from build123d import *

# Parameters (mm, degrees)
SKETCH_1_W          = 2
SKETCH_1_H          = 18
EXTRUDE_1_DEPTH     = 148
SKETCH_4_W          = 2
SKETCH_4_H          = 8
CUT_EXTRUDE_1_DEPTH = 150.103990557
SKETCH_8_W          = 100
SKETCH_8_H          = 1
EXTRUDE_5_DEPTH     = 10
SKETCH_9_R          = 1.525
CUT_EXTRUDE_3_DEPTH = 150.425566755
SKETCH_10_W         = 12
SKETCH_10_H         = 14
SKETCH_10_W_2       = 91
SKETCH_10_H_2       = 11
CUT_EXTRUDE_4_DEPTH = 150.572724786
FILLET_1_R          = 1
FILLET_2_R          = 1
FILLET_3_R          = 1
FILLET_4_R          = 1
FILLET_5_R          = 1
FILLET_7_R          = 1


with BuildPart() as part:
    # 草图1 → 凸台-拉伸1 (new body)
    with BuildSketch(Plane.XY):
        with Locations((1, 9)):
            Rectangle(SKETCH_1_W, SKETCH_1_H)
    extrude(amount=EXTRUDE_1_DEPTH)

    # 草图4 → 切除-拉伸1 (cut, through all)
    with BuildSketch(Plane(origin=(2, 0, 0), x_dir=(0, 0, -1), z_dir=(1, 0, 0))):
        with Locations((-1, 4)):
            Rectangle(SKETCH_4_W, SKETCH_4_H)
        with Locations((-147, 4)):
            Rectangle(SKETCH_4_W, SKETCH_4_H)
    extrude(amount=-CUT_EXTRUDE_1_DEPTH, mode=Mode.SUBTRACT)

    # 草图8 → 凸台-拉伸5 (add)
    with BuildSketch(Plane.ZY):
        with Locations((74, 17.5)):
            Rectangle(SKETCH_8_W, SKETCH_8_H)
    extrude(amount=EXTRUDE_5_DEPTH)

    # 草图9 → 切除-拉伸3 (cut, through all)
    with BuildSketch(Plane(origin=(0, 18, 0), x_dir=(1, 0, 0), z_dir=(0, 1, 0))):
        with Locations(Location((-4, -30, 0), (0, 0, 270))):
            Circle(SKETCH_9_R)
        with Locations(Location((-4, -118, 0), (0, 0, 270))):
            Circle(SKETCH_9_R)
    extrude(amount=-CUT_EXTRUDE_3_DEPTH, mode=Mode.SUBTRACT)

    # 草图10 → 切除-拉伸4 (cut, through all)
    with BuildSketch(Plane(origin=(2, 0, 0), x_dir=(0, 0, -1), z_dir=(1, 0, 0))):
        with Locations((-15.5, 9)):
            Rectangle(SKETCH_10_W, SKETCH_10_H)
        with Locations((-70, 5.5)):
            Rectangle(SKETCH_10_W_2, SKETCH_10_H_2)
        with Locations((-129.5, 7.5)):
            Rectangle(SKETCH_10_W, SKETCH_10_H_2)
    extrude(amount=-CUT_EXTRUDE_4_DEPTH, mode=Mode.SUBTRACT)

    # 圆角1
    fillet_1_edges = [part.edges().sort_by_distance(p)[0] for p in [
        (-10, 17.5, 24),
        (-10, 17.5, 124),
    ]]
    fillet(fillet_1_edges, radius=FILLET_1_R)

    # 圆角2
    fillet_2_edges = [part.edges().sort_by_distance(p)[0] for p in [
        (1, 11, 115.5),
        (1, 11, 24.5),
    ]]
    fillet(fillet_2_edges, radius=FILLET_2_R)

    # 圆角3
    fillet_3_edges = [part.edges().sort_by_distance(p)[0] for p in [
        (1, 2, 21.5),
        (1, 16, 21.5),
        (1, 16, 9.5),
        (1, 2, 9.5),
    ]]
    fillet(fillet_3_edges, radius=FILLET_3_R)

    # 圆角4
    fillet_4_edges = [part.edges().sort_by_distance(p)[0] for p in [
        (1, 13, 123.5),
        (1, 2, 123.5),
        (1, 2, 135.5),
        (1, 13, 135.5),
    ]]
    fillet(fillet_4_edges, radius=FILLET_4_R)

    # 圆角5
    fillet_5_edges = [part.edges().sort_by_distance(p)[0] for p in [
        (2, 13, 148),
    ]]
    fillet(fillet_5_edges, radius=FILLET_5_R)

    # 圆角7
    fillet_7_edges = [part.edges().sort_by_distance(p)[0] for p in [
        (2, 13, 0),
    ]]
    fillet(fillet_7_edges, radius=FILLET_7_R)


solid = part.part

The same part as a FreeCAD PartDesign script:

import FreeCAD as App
import Part
import Sketcher
from FreeCAD import Vector


def edges_at(feature, points):
    """Names of the edges that pass closest to the given points."""
    edges = feature.Shape.Edges
    near = lambda p: min(range(len(edges)), key=lambda i: edges[i].distToShape(Part.Vertex(*p))[0])
    return sorted({f"Edge{near(p) + 1}" for p in points})

doc = App.newDocument("Part")
params = doc.addObject("Spreadsheet::Sheet", "Params")
for row, (alias, value) in enumerate([
    ("sketch1_width", "2 mm"),
    ("sketch1_height", "18 mm"),
    ("pad1_length", "148 mm"),
    ("sketch2_width", "8 mm"),
    ("sketch2_height", "2 mm"),
    ("sketch3_width", "1 mm"),
    ("sketch3_height", "100 mm"),
    ("pad2_length", "10 mm"),
    ("sketch4_diameter", "3.05 mm"),
    ("sketch5_width", "14 mm"),
    ("sketch5_width2", "11 mm"),
    ("sketch5_height", "12 mm"),
    ("sketch5_height2", "91 mm"),
    ("fillet_radius", "1 mm"),
    ("fillet2_radius", "1 mm"),
    ("fillet3_radius", "1 mm"),
    ("fillet4_radius", "1 mm"),
    ("fillet5_radius", "1 mm"),
    ("fillet6_radius", "1 mm"),
], start=1):
    params.set(f"A{row}", alias)
    params.set(f"B{row}", "=" + value)
    params.setAlias(f"B{row}", alias)

body = doc.addObject("PartDesign::Body", "Body")

sketch1 = body.newObject("Sketcher::SketchObject", "Sketch")
sketch1.AttachmentSupport = (doc.getObject("XY_Plane"), [""])
sketch1.MapMode = "FlatFace"
sketch1.addGeometry([
    Part.LineSegment(Vector(0, 18, 0), Vector(0, 0, 0)),
    Part.LineSegment(Vector(0, 0, 0), Vector(2, 0, 0)),
    Part.LineSegment(Vector(2, 0, 0), Vector(2, 18, 0)),
    Part.LineSegment(Vector(2, 18, 0), Vector(0, 18, 0)),
], False)
sketch1.addConstraint([
    Sketcher.Constraint("Coincident", 0, 2, 1, 1),
    Sketcher.Constraint("Coincident", 1, 2, 2, 1),
    Sketcher.Constraint("Coincident", 2, 2, 3, 1),
    Sketcher.Constraint("Coincident", 3, 2, 0, 1),
    Sketcher.Constraint("Vertical", 0),
    Sketcher.Constraint("Horizontal", 1),
    Sketcher.Constraint("Vertical", 2),
    Sketcher.Constraint("Horizontal", 3),
    Sketcher.Constraint("Coincident", 0, 2, -1, 1),
    Sketcher.Constraint("DistanceX", 1, 1, 1, 2, 2.0),
    Sketcher.Constraint("DistanceY", 0, 2, 0, 1, 18.0),
])
sketch1.setExpression("Constraints[9]", "Params.sketch1_width")
sketch1.setExpression("Constraints[10]", "Params.sketch1_height")
pad1 = body.newObject("PartDesign::Pad", "Pad")
pad1.Profile = sketch1
pad1.setExpression("Length", "Params.pad1_length")

sketch2 = body.newObject("Sketcher::SketchObject", "Sketch001")
sketch2.AttachmentSupport = (doc.getObject("YZ_Plane"), [""])
sketch2.MapMode = "FlatFace"
sketch2.AttachmentOffset = App.Placement(Vector(0, 0, 2), App.Rotation())
sketch2.addGeometry([
    Part.LineSegment(Vector(8, 2, 0), Vector(0, 2, 0)),
    Part.LineSegment(Vector(0, 2, 0), Vector(0, 0, 0)),
    Part.LineSegment(Vector(0, 0, 0), Vector(8, 0, 0)),
    Part.LineSegment(Vector(8, 0, 0), Vector(8, 2, 0)),
    Part.LineSegment(Vector(8, 148, 0), Vector(0, 148, 0)),
    Part.LineSegment(Vector(0, 148, 0), Vector(0, 146, 0)),
    Part.LineSegment(Vector(0, 146, 0), Vector(8, 146, 0)),
    Part.LineSegment(Vector(8, 146, 0), Vector(8, 148, 0)),
], False)
sketch2.addConstraint([
    Sketcher.Constraint("Coincident", 0, 2, 1, 1),
    Sketcher.Constraint("Coincident", 1, 2, 2, 1),
    Sketcher.Constraint("Coincident", 2, 2, 3, 1),
    Sketcher.Constraint("Coincident", 3, 2, 0, 1),
    Sketcher.Constraint("Coincident", 4, 2, 5, 1),
    Sketcher.Constraint("Coincident", 5, 2, 6, 1),
    Sketcher.Constraint("Coincident", 6, 2, 7, 1),
    Sketcher.Constraint("Coincident", 7, 2, 4, 1),
    Sketcher.Constraint("Horizontal", 0),
    Sketcher.Constraint("Vertical", 1),
    Sketcher.Constraint("Horizontal", 2),
    Sketcher.Constraint("Vertical", 3),
    Sketcher.Constraint("Horizontal", 4),
    Sketcher.Constraint("Vertical", 5),
    Sketcher.Constraint("Horizontal", 6),
    Sketcher.Constraint("Vertical", 7),
    Sketcher.Constraint("Coincident", 1, 2, -1, 1),
    Sketcher.Constraint("PointOnObject", 4, 2, -2),
    Sketcher.Constraint("Vertical", 3, 2, 6, 2),
    Sketcher.Constraint("Equal", 3, 5),
    Sketcher.Constraint("DistanceX", 0, 2, 0, 1, 8.0),
    Sketcher.Constraint("DistanceY", 1, 2, 1, 1, 2.0),
    Sketcher.Constraint("DistanceY", -1, 1, 4, 2, 148.0),
])
sketch2.setExpression("Constraints[20]", "Params.sketch2_width")
sketch2.setExpression("Constraints[21]", "Params.sketch2_height")
pocket1 = body.newObject("PartDesign::Pocket", "Pocket")
pocket1.Profile = sketch2
pocket1.Type = "ThroughAll"

sketch3 = body.newObject("Sketcher::SketchObject", "Sketch002")
sketch3.AttachmentSupport = (doc.getObject("YZ_Plane"), [""])
sketch3.MapMode = "FlatFace"
sketch3.addGeometry([
    Part.LineSegment(Vector(18, 24, 0), Vector(17, 24, 0)),
    Part.LineSegment(Vector(17, 24, 0), Vector(17, 124, 0)),
    Part.LineSegment(Vector(17, 124, 0), Vector(18, 124, 0)),
    Part.LineSegment(Vector(18, 124, 0), Vector(18, 24, 0)),
], False)
sketch3.addConstraint([
    Sketcher.Constraint("Coincident", 0, 2, 1, 1),
    Sketcher.Constraint("Coincident", 1, 2, 2, 1),
    Sketcher.Constraint("Coincident", 2, 2, 3, 1),
    Sketcher.Constraint("Coincident", 3, 2, 0, 1),
    Sketcher.Constraint("Horizontal", 0),
    Sketcher.Constraint("Vertical", 1),
    Sketcher.Constraint("Horizontal", 2),
    Sketcher.Constraint("Vertical", 3),
    Sketcher.Constraint("DistanceX", 0, 2, 0, 1, 1.0),
    Sketcher.Constraint("DistanceY", 1, 1, 1, 2, 100.0),
    Sketcher.Constraint("DistanceX", -1, 1, 0, 2, 17.0),
    Sketcher.Constraint("DistanceY", -1, 1, 0, 2, 24.0),
])
sketch3.setExpression("Constraints[8]", "Params.sketch3_width")
sketch3.setExpression("Constraints[9]", "Params.sketch3_height")
pad2 = body.newObject("PartDesign::Pad", "Pad001")
pad2.Profile = sketch3
pad2.setExpression("Length", "Params.pad2_length")
pad2.Reversed = True

sketch4 = body.newObject("Sketcher::SketchObject", "Sketch003")
sketch4.AttachmentSupport = (doc.getObject("XZ_Plane"), [""])
sketch4.MapMode = "FlatFace"
sketch4.AttachmentOffset = App.Placement(Vector(0, 0, -18), App.Rotation())
sketch4.addGeometry([
    Part.Circle(Vector(-4, 30, 0), Vector(0, 0, 1), 1.5),
    Part.Circle(Vector(-4, 118, 0), Vector(0, 0, 1), 1.5),
], False)
sketch4.addConstraint([
    Sketcher.Constraint("Equal", 0, 1),
    Sketcher.Constraint("Vertical", 0, 3, 1, 3),
    Sketcher.Constraint("Diameter", 0, 3.05),
    Sketcher.Constraint("DistanceX", 0, 3, -1, 1, 4.0),
    Sketcher.Constraint("DistanceY", -1, 1, 0, 3, 30.0),
    Sketcher.Constraint("DistanceY", -1, 1, 1, 3, 118.0),
])
sketch4.setExpression("Constraints[2]", "Params.sketch4_diameter")
pocket2 = body.newObject("PartDesign::Pocket", "Pocket001")
pocket2.Profile = sketch4
pocket2.Type = "ThroughAll"
pocket2.Reversed = True

sketch5 = body.newObject("Sketcher::SketchObject", "Sketch004")
sketch5.AttachmentSupport = (doc.getObject("YZ_Plane"), [""])
sketch5.MapMode = "FlatFace"
sketch5.AttachmentOffset = App.Placement(Vector(0, 0, 2), App.Rotation())
sketch5.addGeometry([
    Part.LineSegment(Vector(16, 22, 0), Vector(2, 22, 0)),
    Part.LineSegment(Vector(2, 22, 0), Vector(2, 10, 0)),
    Part.LineSegment(Vector(2, 10, 0), Vector(16, 10, 0)),
    Part.LineSegment(Vector(16, 10, 0), Vector(16, 22, 0)),
    Part.LineSegment(Vector(11, 116, 0), Vector(0, 116, 0)),
    Part.LineSegment(Vector(0, 116, 0), Vector(0, 24, 0)),
    Part.LineSegment(Vector(0, 24, 0), Vector(11, 24, 0)),
    Part.LineSegment(Vector(11, 24, 0), Vector(11, 116, 0)),
    Part.LineSegment(Vector(13, 136, 0), Vector(2, 136, 0)),
    Part.LineSegment(Vector(2, 136, 0), Vector(2, 124, 0)),
    Part.LineSegment(Vector(2, 124, 0), Vector(13, 124, 0)),
    Part.LineSegment(Vector(13, 124, 0), Vector(13, 136, 0)),
], False)
sketch5.addConstraint([
    Sketcher.Constraint("Coincident", 0, 2, 1, 1),
    Sketcher.Constraint("Coincident", 1, 2, 2, 1),
    Sketcher.Constraint("Coincident", 2, 2, 3, 1),
    Sketcher.Constraint("Coincident", 3, 2, 0, 1),
    Sketcher.Constraint("Coincident", 4, 2, 5, 1),
    Sketcher.Constraint("Coincident", 5, 2, 6, 1),
    Sketcher.Constraint("Coincident", 6, 2, 7, 1),
    Sketcher.Constraint("Coincident", 7, 2, 4, 1),
    Sketcher.Constraint("Coincident", 8, 2, 9, 1),
    Sketcher.Constraint("Coincident", 9, 2, 10, 1),
    Sketcher.Constraint("Coincident", 10, 2, 11, 1),
    Sketcher.Constraint("Coincident", 11, 2, 8, 1),
    Sketcher.Constraint("Horizontal", 0),
    Sketcher.Constraint("Vertical", 1),
    Sketcher.Constraint("Horizontal", 2),
    Sketcher.Constraint("Vertical", 3),
    Sketcher.Constraint("Horizontal", 4),
    Sketcher.Constraint("Vertical", 5),
    Sketcher.Constraint("Horizontal", 6),
    Sketcher.Constraint("Vertical", 7),
    Sketcher.Constraint("Horizontal", 8),
    Sketcher.Constraint("Vertical", 9),
    Sketcher.Constraint("Horizontal", 10),
    Sketcher.Constraint("Vertical", 11),
    Sketcher.Constraint("PointOnObject", 4, 2, -2),
    Sketcher.Constraint("Vertical", 1, 2, 8, 2),
    Sketcher.Constraint("Equal", 6, 8),
    Sketcher.Constraint("Equal", 3, 9),
    Sketcher.Constraint("DistanceX", 0, 2, 0, 1, 14.0),
    Sketcher.Constraint("DistanceX", 4, 2, 4, 1, 11.0),
    Sketcher.Constraint("DistanceY", 1, 2, 1, 1, 12.0),
    Sketcher.Constraint("DistanceY", 5, 2, 5, 1, 91.0),
    Sketcher.Constraint("DistanceX", -1, 1, 0, 2, 2.0),
    Sketcher.Constraint("DistanceY", 0, 2, 4, 2, 94.0),
    Sketcher.Constraint("DistanceY", 4, 2, 8, 2, 20.0),
    Sketcher.Constraint("DistanceY", -1, 1, 0, 2, 21.5),
])
sketch5.setExpression("Constraints[28]", "Params.sketch5_width")
sketch5.setExpression("Constraints[29]", "Params.sketch5_width2")
sketch5.setExpression("Constraints[30]", "Params.sketch5_height")
sketch5.setExpression("Constraints[31]", "Params.sketch5_height2")
pocket3 = body.newObject("PartDesign::Pocket", "Pocket002")
pocket3.Profile = sketch5
pocket3.Type = "ThroughAll"
doc.recompute()

fillet = body.newObject("PartDesign::Fillet", "Fillet")
fillet.Base = (pocket3, edges_at(pocket3, [(-10, 17.5, 24), (-10, 17.5, 124)]))
fillet.setExpression("Radius", "Params.fillet_radius")
doc.recompute()

fillet2 = body.newObject("PartDesign::Fillet", "Fillet001")
fillet2.Base = (fillet, edges_at(fillet, [(1, 11, 115.5), (1, 11, 24.5)]))
fillet2.setExpression("Radius", "Params.fillet2_radius")
doc.recompute()

fillet3 = body.newObject("PartDesign::Fillet", "Fillet002")
fillet3.Base = (fillet2, edges_at(fillet2, [
    (1, 2, 21.5),
    (1, 16, 21.5),
    (1, 16, 9.5),
    (1, 2, 9.5),
]))
fillet3.setExpression("Radius", "Params.fillet3_radius")
doc.recompute()

fillet4 = body.newObject("PartDesign::Fillet", "Fillet003")
fillet4.Base = (fillet3, edges_at(fillet3, [
    (1, 13, 123.5),
    (1, 2, 123.5),
    (1, 2, 135.5),
    (1, 13, 135.5),
]))
fillet4.setExpression("Radius", "Params.fillet4_radius")
doc.recompute()

fillet5 = body.newObject("PartDesign::Fillet", "Fillet004")
fillet5.Base = (fillet4, edges_at(fillet4, [(2, 13, 148)]))
fillet5.setExpression("Radius", "Params.fillet5_radius")
doc.recompute()

fillet6 = body.newObject("PartDesign::Fillet", "Fillet005")
fillet6.Base = (fillet5, edges_at(fillet5, [(2, 13, 0)]))
fillet6.setExpression("Radius", "Params.fillet6_radius")

doc.recompute()
